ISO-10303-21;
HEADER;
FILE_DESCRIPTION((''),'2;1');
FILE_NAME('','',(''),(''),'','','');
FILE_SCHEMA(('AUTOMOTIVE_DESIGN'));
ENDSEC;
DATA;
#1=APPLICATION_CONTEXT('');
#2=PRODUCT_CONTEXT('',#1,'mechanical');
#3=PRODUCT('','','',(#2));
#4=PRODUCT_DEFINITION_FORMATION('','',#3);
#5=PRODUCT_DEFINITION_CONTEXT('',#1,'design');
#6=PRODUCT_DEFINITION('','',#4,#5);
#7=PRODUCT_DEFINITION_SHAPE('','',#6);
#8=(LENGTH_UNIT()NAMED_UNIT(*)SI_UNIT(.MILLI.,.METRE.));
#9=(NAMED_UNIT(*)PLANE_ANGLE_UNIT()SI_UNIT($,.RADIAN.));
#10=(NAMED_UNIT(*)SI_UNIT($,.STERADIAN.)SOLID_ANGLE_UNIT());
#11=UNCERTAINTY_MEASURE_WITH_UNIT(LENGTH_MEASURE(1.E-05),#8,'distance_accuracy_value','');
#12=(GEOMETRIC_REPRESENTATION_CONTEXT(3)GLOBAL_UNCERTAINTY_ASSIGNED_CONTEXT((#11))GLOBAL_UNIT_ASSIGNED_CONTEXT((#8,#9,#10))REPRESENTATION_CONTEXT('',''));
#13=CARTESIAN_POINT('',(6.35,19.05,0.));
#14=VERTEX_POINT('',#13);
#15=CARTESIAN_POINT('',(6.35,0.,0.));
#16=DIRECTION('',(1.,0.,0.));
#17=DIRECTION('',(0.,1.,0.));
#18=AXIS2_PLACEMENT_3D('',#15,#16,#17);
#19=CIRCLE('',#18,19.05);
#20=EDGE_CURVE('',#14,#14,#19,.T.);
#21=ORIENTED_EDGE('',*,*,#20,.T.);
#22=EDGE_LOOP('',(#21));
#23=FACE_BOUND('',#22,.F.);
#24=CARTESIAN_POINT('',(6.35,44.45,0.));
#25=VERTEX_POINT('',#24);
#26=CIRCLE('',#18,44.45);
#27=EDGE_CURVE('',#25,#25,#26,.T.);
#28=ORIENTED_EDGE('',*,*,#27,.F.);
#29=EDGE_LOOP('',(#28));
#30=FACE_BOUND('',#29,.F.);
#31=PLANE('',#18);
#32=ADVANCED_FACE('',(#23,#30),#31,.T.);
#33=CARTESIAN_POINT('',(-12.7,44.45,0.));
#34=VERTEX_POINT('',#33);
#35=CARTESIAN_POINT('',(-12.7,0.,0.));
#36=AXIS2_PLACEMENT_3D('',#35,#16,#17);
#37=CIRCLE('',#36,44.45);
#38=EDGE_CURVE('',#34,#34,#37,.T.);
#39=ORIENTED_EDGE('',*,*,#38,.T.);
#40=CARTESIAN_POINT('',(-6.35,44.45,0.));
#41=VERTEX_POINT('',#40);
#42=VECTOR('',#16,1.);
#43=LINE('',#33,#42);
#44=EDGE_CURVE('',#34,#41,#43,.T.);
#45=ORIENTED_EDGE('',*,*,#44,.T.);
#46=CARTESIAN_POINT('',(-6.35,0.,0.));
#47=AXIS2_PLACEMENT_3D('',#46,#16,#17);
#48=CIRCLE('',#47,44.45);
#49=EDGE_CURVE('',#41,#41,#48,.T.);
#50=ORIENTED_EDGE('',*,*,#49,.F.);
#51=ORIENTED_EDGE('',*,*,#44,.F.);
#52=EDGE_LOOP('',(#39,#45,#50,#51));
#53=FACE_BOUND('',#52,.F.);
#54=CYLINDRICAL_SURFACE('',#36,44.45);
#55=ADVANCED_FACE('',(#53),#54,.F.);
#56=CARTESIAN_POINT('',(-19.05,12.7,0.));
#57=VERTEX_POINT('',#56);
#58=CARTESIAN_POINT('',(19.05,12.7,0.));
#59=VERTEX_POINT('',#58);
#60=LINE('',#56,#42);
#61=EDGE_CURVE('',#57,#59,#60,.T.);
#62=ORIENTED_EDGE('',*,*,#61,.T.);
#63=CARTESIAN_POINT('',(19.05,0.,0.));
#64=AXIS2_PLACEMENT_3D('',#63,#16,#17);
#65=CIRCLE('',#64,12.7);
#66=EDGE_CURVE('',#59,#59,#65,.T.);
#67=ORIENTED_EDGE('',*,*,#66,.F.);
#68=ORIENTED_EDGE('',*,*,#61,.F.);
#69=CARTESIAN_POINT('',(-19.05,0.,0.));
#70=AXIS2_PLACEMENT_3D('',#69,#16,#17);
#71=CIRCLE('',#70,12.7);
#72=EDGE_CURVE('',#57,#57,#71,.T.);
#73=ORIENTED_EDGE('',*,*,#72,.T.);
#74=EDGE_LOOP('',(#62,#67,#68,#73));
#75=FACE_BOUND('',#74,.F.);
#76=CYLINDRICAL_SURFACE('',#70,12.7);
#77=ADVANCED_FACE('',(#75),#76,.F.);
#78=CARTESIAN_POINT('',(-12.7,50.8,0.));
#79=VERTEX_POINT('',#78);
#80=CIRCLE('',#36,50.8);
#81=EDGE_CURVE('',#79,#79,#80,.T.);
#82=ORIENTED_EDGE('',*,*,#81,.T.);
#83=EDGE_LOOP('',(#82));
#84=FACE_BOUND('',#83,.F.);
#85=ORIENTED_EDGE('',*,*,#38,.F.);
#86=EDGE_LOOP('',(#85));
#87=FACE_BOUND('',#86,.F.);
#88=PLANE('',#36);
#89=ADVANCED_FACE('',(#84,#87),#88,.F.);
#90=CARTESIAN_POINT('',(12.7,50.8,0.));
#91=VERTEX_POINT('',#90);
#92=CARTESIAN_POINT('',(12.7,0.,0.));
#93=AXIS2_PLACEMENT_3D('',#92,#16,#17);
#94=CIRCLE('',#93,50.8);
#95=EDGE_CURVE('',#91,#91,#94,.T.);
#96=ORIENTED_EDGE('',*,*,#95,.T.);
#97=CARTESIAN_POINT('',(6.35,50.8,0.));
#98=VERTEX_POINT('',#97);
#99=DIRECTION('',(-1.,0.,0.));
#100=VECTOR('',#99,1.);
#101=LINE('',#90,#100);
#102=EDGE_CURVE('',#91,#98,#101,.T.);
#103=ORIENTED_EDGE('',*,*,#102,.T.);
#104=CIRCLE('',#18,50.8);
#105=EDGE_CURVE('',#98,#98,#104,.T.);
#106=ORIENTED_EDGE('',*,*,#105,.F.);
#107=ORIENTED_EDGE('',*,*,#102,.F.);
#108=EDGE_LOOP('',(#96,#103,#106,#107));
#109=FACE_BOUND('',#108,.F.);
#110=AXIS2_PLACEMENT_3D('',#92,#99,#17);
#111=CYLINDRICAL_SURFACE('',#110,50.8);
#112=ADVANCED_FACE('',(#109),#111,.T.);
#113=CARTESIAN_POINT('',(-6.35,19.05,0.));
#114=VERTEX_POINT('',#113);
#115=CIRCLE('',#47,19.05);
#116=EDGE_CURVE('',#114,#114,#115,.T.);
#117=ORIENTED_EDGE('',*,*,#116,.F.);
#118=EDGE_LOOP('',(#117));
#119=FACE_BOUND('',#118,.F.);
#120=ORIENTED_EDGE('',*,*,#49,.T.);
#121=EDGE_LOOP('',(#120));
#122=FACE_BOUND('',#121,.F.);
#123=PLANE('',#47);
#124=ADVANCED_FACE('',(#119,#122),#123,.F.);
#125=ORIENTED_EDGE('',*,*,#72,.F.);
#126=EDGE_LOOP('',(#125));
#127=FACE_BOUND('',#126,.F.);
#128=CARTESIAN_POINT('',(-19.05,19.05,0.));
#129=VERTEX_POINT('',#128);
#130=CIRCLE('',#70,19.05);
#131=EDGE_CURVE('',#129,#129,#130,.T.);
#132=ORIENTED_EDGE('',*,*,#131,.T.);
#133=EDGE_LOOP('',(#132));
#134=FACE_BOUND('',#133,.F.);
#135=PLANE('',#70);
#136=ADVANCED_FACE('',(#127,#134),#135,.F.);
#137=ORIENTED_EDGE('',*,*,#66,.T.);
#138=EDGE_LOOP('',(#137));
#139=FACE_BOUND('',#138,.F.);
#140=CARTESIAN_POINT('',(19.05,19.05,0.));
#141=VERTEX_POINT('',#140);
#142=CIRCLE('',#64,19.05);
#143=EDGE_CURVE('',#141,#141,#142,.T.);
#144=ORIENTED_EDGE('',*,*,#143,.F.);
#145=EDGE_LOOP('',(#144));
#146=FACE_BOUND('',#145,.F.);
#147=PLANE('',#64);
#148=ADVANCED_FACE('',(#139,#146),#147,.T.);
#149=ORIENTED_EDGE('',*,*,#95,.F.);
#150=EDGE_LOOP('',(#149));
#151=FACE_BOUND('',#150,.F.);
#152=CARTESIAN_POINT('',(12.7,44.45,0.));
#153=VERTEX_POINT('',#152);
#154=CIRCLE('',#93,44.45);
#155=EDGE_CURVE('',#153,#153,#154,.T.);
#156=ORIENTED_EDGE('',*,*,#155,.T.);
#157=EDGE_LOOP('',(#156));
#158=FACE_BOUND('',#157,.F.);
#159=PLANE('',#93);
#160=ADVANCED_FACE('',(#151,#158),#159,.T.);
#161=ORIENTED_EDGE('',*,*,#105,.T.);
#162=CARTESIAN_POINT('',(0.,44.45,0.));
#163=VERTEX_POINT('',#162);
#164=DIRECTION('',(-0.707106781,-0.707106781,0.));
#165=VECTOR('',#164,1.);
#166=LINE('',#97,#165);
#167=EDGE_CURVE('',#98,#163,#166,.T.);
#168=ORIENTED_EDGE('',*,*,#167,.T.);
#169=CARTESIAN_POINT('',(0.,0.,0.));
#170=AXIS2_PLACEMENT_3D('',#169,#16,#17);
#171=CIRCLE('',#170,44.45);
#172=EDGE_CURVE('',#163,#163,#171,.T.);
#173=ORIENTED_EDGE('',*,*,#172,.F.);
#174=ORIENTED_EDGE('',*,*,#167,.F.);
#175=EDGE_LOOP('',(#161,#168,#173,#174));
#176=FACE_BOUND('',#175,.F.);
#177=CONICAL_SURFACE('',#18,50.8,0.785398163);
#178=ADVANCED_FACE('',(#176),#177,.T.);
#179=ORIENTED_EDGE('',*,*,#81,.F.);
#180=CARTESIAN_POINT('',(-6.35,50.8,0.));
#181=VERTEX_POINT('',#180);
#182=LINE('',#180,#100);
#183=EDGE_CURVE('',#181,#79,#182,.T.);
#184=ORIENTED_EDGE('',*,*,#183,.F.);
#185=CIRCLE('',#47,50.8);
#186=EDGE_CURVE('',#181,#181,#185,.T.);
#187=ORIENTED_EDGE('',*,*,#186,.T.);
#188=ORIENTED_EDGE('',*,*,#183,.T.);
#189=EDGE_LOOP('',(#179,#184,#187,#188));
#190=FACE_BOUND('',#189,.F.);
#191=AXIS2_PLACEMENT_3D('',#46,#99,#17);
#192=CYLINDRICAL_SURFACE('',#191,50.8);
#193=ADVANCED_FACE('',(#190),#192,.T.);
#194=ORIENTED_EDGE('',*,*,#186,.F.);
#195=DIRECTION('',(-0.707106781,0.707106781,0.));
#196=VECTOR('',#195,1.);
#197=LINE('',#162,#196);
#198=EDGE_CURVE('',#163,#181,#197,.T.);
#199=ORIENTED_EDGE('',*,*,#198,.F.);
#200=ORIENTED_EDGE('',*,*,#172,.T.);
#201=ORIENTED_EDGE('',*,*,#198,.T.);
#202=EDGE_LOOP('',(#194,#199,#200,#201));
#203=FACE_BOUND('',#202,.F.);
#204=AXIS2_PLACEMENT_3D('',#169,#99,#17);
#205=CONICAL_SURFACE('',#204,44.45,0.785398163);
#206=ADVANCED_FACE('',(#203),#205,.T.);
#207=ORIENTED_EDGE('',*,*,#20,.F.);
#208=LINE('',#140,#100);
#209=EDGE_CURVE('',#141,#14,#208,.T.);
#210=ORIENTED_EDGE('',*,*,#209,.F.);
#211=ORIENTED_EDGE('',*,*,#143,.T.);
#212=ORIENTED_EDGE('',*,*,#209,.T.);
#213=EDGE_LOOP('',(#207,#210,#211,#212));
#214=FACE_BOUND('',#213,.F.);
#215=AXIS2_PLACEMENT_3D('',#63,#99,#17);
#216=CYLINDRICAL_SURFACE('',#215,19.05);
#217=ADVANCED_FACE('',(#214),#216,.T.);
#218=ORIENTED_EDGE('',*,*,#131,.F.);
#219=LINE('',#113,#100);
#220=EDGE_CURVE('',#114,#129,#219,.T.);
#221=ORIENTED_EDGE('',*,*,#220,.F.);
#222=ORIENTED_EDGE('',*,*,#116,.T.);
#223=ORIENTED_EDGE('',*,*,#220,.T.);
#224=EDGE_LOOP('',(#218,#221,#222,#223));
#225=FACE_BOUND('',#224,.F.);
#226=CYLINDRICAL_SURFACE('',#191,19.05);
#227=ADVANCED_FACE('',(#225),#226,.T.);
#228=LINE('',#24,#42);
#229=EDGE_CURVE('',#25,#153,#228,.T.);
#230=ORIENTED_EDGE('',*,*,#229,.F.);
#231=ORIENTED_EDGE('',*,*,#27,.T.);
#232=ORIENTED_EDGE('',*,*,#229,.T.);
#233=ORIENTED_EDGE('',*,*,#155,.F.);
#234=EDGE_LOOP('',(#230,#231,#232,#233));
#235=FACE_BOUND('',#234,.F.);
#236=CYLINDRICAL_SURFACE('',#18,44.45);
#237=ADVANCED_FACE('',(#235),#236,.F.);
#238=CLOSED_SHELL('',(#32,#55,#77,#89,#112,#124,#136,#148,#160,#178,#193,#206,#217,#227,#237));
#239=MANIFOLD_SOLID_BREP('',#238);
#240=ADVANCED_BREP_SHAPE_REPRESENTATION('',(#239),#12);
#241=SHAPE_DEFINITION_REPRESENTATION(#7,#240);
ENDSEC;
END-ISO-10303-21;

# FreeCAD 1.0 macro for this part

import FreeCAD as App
import Part
import Sketcher
Q = App.Units.Quantity


def add_polygon(sketch, points):
    """Adds a closed chain of lines whose ends are joined by coincident constraints."""
    first, n = sketch.GeometryCount, len(points)
    for a, b in zip(points, points[1:] + points[:1]):
        sketch.addGeometry(Part.LineSegment(App.Vector(*a, 0), App.Vector(*b, 0)), False)
    for i in range(n):
        sketch.addConstraint(Sketcher.Constraint("Coincident", first + i, 2, first + (i + 1) % n, 1))

doc = App.newDocument("Part")
body = doc.addObject("PartDesign::Body", "Body")

sketch1 = doc.addObject("Sketcher::SketchObject", "Sketch")
body.addObject(sketch1)
sketch1.AttachmentSupport = (doc.XY_Plane, [""])
sketch1.MapMode = "FlatFace"
add_polygon(sketch1, [(-19.05, 12.7), (19.05, 12.7), (19.05, 19.05), (6.35, 19.05), (6.35, 44.45), (12.7, 44.45), (12.7, 50.8), (6.35, 50.8), (0, 44.45), (-6.35, 50.8), (-12.7, 50.8), (-12.7, 44.45), (-6.35, 44.45), (-6.35, 19.05), (-19.05, 19.05)])
sketch1.addConstraint(Sketcher.Constraint("Horizontal", 0))
sketch1.addConstraint(Sketcher.Constraint("Vertical", 1))
sketch1.addConstraint(Sketcher.Constraint("Horizontal", 2))
sketch1.addConstraint(Sketcher.Constraint("Vertical", 3))
sketch1.addConstraint(Sketcher.Constraint("Horizontal", 4))
sketch1.addConstraint(Sketcher.Constraint("Vertical", 5))
sketch1.addConstraint(Sketcher.Constraint("Horizontal", 6))
sketch1.addConstraint(Sketcher.Constraint("Horizontal", 9))
sketch1.addConstraint(Sketcher.Constraint("Vertical", 10))
sketch1.addConstraint(Sketcher.Constraint("Horizontal", 11))
sketch1.addConstraint(Sketcher.Constraint("Vertical", 12))
sketch1.addConstraint(Sketcher.Constraint("Horizontal", 13))
sketch1.addConstraint(Sketcher.Constraint("Vertical", 14))
sketch1.addConstraint(Sketcher.Constraint("Symmetric", 6, 2, 8, 2, -2))
sketch1.addConstraint(Sketcher.Constraint("Symmetric", 4, 2, 10, 2, -2))
sketch1.addConstraint(Sketcher.Constraint("Symmetric", 2, 2, 12, 2, -2))
sketch1.addConstraint(Sketcher.Constraint("PointOnObject", 7, 2, -2))
sketch1.addConstraint(Sketcher.Constraint("Perpendicular", 7, 8))
sketch1.addConstraint(Sketcher.Constraint("Horizontal", 4, 2, 7, 2))
sketch1.addConstraint(Sketcher.Constraint("Vertical", 3, 2, 6, 2))
sketch1.addConstraint(Sketcher.Constraint("Equal", 2, 13))
sketch1.addConstraint(Sketcher.Constraint("Equal", 11, 1))
sketch1.addConstraint(Sketcher.Constraint("Equal", 1, 5))
sketch1.addConstraint(Sketcher.Constraint("DistanceY", 3, 1, 3, 2, Q("1 in")))
sketch1.addConstraint(Sketcher.Constraint("DistanceX", 0, 1, 0, 2, Q("1.5 in")))
sketch1.addConstraint(Sketcher.Constraint("DistanceX", 2, 2, 2, 1, Q("0.5 in")))
sketch1.addConstraint(Sketcher.Constraint("DistanceY", -1, 1, 5, 2, Q("2 in")))
revolution = doc.addObject("PartDesign::Revolution", "Revolution")
body.addObject(revolution)
revolution.Profile = sketch1
revolution.ReferenceAxis = (sketch1, ["H_Axis"])
revolution.Angle = 360

doc.recompute()
